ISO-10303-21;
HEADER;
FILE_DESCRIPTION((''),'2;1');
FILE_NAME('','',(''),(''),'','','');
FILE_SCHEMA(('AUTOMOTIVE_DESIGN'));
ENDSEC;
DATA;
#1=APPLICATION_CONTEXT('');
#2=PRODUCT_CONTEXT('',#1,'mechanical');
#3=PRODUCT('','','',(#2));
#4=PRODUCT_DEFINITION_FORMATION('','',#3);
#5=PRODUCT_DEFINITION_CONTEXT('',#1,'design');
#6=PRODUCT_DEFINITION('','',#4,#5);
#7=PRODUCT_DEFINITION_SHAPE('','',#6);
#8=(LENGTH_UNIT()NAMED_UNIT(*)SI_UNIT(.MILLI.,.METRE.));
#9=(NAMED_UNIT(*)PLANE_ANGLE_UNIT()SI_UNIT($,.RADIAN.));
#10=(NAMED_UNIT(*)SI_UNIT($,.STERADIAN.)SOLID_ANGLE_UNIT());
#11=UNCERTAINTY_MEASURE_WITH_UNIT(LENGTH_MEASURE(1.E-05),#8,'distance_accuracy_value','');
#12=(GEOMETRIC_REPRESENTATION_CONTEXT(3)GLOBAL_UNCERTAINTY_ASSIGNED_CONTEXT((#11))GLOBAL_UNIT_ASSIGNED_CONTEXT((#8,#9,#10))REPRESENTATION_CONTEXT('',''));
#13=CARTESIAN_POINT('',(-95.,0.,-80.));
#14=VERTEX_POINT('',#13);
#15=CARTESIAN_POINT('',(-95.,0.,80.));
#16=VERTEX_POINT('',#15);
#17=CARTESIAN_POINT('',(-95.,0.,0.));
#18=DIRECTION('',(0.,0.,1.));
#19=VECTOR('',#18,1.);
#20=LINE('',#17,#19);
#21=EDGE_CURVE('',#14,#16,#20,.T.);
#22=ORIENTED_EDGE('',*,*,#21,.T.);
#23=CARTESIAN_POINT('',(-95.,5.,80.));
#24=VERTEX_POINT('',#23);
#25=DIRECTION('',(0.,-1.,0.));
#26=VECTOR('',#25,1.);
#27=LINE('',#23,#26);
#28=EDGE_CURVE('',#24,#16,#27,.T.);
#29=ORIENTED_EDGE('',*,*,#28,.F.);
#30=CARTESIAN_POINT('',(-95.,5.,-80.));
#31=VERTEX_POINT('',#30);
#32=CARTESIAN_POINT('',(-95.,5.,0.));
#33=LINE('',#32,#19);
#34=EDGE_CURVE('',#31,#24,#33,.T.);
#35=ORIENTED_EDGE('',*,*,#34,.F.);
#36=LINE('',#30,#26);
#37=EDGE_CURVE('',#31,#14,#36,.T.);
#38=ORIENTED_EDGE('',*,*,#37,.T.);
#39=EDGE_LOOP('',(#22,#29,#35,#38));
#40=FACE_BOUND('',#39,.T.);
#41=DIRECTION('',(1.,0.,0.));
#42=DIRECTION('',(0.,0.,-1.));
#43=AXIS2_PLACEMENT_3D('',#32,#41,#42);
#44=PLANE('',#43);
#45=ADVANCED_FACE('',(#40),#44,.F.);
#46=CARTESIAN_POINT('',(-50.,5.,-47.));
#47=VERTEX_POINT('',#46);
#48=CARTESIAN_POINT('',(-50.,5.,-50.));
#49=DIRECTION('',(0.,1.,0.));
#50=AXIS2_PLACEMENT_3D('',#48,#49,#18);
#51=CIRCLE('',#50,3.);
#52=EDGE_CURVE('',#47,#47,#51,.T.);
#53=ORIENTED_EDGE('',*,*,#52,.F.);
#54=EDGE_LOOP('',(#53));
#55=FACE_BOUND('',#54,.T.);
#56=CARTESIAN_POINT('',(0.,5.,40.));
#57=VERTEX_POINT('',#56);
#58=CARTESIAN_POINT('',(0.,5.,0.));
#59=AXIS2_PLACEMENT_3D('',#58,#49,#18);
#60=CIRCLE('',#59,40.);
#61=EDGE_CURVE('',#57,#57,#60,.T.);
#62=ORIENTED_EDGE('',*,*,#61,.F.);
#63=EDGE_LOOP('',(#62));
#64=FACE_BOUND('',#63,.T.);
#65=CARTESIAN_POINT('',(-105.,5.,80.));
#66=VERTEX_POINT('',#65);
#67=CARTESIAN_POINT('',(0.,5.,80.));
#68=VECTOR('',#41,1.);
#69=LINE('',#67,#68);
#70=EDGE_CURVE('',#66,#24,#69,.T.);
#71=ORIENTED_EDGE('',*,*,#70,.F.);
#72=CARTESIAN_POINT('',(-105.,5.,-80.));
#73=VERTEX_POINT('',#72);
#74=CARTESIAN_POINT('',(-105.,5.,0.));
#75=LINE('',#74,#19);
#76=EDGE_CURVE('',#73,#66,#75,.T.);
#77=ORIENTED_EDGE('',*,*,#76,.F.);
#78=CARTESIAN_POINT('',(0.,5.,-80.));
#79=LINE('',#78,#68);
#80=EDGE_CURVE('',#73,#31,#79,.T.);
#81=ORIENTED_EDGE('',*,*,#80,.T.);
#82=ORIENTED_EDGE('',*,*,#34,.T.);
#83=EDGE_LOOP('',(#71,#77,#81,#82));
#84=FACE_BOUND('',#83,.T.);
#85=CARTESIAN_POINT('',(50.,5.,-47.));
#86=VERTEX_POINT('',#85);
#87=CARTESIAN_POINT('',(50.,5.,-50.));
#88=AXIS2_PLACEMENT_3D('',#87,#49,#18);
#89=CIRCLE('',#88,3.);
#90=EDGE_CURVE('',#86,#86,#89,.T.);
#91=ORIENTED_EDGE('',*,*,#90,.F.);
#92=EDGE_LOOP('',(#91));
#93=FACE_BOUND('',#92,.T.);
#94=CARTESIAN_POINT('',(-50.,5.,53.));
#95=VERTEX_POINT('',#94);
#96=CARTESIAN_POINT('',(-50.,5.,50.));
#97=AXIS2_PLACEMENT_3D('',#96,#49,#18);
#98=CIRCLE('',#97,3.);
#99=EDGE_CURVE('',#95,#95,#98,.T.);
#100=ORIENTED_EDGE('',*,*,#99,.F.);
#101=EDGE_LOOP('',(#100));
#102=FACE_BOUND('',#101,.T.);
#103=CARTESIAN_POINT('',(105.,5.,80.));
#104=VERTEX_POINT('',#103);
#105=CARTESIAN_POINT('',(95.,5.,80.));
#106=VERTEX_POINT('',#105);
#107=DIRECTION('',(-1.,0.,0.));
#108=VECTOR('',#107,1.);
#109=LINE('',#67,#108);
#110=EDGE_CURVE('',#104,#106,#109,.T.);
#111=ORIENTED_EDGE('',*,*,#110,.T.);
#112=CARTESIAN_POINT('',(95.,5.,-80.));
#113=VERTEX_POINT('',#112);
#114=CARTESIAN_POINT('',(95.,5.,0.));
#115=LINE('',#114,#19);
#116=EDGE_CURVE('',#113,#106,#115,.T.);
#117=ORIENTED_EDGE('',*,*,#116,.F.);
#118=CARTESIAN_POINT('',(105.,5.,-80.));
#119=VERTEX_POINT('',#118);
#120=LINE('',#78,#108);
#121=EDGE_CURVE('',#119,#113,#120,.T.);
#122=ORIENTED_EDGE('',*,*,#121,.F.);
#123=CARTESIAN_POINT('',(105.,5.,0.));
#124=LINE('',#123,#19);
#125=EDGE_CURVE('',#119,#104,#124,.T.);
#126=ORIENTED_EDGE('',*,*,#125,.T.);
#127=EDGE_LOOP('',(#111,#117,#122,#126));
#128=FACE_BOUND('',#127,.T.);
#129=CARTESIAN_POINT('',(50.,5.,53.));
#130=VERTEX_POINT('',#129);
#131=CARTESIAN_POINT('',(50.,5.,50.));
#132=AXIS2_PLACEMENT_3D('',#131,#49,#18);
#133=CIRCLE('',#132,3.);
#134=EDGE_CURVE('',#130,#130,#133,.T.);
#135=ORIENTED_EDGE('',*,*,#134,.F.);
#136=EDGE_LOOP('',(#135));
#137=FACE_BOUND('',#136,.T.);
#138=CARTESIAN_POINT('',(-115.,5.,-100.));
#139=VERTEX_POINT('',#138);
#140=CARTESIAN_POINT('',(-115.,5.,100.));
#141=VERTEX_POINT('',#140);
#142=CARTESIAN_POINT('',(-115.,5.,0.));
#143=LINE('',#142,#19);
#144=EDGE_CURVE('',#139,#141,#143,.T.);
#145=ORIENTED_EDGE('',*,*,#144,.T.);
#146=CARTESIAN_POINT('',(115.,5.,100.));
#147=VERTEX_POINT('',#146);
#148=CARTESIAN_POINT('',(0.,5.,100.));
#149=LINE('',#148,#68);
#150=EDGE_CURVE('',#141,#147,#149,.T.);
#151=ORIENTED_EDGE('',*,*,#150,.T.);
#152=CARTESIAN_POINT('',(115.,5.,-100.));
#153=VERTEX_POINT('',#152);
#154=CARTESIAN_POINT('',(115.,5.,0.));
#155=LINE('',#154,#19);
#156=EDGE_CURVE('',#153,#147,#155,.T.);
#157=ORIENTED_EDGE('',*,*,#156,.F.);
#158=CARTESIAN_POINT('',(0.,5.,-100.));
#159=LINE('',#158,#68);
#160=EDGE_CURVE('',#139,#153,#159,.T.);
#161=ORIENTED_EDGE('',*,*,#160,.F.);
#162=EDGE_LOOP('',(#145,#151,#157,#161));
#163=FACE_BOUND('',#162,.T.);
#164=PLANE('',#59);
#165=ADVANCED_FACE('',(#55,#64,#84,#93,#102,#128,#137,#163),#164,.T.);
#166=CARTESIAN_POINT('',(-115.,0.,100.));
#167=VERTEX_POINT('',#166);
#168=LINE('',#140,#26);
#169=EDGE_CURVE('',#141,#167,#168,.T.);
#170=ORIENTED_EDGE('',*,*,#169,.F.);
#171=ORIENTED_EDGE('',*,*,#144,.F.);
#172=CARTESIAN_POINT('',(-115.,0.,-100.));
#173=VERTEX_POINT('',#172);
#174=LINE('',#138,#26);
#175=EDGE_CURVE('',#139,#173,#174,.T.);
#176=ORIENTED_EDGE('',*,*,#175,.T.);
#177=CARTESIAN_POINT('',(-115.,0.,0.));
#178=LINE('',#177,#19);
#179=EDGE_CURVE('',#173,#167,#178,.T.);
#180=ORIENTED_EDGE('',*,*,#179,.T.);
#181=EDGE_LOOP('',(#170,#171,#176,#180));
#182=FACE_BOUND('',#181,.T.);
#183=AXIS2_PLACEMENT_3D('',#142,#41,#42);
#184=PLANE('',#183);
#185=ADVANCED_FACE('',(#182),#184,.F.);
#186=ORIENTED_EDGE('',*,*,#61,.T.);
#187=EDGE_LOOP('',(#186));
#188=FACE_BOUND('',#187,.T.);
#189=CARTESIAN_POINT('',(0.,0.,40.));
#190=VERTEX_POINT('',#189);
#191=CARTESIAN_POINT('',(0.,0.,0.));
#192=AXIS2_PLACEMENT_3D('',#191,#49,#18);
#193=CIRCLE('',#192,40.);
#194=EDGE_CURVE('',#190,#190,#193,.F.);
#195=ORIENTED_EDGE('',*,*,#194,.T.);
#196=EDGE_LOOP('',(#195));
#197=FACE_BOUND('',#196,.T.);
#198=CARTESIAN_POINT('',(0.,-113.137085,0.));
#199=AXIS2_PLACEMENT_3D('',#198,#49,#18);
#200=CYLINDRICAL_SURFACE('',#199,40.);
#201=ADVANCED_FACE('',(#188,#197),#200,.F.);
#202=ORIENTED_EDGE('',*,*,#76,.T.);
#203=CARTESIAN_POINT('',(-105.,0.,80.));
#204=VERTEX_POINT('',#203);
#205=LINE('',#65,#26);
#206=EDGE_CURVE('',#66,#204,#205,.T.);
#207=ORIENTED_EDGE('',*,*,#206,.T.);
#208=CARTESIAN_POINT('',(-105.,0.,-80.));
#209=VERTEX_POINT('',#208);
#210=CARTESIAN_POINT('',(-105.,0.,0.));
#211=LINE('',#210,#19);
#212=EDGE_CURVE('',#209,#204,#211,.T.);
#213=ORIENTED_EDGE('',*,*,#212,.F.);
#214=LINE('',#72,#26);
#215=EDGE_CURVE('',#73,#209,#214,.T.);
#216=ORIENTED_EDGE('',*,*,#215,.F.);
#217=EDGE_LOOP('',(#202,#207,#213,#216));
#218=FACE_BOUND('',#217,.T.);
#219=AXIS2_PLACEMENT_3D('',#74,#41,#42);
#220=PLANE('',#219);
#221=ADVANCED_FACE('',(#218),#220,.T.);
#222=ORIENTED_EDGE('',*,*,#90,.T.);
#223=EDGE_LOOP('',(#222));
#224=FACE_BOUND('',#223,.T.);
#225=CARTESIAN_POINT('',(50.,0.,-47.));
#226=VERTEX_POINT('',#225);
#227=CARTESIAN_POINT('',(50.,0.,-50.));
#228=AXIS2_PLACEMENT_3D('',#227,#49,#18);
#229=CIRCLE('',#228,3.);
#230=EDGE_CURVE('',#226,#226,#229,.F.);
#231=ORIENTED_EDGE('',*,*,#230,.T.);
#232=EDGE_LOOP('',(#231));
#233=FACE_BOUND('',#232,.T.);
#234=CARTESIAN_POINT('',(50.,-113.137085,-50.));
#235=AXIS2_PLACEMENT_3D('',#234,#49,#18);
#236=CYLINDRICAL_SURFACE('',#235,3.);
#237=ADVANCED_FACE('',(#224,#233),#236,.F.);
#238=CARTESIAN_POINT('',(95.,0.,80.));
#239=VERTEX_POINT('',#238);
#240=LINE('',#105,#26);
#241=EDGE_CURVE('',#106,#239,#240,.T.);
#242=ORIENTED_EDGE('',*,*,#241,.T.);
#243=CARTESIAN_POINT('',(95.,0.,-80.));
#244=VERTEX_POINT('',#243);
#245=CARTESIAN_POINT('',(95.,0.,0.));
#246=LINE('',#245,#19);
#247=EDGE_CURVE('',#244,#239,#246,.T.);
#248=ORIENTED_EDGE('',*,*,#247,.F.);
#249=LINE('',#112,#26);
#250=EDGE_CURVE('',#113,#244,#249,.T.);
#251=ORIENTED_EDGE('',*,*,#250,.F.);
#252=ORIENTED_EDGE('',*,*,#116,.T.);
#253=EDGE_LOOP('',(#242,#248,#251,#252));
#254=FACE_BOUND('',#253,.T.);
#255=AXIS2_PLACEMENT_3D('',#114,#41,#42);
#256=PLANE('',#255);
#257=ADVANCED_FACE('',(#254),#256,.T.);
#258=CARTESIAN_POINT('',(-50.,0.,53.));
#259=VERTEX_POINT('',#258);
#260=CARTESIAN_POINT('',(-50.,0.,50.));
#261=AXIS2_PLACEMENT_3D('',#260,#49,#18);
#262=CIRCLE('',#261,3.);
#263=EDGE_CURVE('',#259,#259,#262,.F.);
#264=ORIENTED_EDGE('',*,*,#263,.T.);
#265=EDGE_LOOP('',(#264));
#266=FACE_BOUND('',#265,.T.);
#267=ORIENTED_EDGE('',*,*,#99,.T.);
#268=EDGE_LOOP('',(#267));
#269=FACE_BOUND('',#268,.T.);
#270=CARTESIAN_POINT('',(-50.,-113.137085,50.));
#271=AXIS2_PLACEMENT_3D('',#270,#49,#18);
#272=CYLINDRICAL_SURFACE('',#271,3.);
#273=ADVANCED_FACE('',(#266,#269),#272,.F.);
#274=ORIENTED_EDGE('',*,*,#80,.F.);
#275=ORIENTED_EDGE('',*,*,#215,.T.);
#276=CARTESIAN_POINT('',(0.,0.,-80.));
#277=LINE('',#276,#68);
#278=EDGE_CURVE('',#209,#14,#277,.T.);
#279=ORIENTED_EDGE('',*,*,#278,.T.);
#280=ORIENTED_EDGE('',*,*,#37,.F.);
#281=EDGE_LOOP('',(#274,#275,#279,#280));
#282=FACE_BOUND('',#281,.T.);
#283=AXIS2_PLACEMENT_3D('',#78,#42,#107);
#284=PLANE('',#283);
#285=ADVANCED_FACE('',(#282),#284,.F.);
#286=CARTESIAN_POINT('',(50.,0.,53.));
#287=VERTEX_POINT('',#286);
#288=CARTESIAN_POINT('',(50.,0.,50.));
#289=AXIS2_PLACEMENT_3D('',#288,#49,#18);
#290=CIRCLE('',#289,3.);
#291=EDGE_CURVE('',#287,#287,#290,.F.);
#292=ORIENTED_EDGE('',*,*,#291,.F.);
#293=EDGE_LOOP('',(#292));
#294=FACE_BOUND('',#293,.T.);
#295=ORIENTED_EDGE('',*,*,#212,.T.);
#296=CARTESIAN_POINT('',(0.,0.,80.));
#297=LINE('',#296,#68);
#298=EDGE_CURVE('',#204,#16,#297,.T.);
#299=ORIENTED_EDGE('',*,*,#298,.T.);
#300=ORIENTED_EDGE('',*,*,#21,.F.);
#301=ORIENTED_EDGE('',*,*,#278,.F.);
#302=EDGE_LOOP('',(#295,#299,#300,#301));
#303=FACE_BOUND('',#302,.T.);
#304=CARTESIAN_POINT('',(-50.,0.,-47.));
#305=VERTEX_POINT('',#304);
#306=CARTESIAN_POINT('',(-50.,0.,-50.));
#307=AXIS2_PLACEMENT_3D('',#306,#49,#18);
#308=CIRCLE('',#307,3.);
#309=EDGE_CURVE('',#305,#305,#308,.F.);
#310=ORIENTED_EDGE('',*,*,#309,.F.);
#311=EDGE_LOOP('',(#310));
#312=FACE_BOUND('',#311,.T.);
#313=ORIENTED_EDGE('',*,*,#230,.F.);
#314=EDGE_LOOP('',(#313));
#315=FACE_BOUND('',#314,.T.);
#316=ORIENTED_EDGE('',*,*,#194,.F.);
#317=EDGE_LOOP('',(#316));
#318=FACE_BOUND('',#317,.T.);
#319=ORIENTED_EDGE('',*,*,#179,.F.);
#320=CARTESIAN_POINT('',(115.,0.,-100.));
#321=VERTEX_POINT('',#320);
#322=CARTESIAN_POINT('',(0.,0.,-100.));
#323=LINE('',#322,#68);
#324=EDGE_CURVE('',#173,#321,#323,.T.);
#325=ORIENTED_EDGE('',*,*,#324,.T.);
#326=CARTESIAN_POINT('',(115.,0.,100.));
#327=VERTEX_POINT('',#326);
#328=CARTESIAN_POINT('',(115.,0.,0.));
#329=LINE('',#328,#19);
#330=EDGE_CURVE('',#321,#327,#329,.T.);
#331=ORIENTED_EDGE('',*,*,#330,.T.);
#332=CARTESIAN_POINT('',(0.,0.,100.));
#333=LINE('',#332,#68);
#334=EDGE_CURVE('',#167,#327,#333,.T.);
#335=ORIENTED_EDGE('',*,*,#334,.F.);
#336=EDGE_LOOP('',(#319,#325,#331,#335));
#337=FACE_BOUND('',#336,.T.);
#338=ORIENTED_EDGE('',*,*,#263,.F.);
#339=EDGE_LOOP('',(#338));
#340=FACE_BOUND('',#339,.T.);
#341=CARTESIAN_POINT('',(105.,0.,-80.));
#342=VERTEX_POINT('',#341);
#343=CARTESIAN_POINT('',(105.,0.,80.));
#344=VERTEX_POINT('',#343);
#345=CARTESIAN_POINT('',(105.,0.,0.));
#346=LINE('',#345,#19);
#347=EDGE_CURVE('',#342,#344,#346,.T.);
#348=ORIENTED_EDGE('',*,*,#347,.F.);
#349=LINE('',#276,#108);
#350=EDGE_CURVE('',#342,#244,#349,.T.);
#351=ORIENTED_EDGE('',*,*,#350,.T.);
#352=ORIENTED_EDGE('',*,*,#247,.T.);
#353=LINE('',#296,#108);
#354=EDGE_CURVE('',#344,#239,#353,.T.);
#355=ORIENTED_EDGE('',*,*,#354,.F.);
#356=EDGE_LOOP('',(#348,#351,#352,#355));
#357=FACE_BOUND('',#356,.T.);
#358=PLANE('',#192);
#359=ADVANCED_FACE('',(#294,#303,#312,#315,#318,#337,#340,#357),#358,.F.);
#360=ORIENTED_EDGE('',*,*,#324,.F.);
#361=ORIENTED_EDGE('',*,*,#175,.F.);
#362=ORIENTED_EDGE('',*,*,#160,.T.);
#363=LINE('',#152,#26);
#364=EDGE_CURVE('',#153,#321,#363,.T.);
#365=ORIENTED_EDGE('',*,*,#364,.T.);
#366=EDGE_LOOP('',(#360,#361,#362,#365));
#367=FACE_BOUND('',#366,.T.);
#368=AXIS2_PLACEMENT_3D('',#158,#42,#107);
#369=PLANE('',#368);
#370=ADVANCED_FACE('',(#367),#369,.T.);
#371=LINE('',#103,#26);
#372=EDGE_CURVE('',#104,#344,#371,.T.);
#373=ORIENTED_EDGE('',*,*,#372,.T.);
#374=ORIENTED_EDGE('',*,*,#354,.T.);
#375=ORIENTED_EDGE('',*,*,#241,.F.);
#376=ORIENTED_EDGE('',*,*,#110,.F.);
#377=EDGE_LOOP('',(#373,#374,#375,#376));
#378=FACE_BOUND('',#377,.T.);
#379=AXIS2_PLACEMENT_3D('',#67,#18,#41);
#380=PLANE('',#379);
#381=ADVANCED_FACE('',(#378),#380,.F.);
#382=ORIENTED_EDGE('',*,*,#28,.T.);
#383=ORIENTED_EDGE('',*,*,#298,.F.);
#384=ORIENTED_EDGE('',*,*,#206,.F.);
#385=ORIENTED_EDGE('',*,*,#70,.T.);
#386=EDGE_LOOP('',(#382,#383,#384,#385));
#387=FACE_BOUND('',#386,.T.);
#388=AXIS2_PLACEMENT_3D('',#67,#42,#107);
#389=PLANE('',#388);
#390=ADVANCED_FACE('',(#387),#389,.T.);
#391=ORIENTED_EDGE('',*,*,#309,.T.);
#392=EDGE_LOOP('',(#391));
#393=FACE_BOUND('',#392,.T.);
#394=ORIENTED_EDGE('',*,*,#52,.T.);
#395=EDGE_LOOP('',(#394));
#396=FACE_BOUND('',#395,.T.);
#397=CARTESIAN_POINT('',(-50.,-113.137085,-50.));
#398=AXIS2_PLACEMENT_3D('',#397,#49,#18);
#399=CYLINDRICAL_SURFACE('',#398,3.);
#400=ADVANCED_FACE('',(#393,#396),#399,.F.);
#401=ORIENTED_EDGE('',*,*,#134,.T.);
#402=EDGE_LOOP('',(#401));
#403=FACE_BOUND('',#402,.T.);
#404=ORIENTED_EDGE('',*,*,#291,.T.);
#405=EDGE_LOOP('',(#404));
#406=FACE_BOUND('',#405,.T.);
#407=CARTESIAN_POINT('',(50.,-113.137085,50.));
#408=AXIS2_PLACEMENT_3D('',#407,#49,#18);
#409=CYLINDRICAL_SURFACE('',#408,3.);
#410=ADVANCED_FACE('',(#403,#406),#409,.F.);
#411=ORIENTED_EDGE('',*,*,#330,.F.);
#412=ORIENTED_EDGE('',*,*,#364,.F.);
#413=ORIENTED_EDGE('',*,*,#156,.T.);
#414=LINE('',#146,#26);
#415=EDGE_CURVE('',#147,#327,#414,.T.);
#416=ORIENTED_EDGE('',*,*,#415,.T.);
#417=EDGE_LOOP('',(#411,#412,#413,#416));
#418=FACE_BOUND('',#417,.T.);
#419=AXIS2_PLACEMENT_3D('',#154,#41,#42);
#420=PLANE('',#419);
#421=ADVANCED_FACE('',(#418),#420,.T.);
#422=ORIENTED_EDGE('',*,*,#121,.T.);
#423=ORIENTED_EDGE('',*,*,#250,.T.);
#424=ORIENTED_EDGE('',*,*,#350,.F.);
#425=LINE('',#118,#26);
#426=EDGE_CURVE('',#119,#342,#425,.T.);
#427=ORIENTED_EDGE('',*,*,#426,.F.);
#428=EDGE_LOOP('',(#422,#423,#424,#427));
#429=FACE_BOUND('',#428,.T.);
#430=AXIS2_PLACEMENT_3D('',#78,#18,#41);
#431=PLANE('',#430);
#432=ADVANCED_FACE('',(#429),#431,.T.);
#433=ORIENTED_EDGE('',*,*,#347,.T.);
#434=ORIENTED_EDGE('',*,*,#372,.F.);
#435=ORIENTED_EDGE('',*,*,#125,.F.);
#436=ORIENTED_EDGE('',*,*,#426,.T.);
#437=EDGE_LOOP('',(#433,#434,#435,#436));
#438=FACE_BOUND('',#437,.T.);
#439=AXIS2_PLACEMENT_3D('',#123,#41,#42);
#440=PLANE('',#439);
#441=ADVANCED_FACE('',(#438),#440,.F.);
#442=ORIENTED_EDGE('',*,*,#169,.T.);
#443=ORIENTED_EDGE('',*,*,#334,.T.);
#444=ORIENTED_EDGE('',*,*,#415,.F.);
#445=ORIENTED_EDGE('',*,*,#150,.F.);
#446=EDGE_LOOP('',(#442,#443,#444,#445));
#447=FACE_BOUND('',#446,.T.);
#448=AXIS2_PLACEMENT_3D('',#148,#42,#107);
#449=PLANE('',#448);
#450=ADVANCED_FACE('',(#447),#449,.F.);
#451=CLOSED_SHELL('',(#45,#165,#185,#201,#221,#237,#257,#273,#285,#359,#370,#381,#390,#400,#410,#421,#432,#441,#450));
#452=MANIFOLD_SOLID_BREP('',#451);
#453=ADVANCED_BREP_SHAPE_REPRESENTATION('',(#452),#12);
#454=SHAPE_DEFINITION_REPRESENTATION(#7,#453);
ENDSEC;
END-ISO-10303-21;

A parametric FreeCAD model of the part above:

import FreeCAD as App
import Part
import Sketcher
from FreeCAD import Vector

doc = App.newDocument("Part")
params = doc.addObject("Spreadsheet::Sheet", "Params")
for row, (alias, value) in enumerate([
    ("sketch1_width", "230 mm"),
    ("sketch1_width2", "10 mm"),
    ("sketch1_height", "200 mm"),
    ("sketch1_height2", "160 mm"),
    ("pad1_length", "5 mm"),
    ("sketch2_diameter", "80 mm"),
    ("sketch2_diameter2", "6 mm"),
    ("pocket1_length", "5 mm"),
], start=1):
    params.set(f"A{row}", alias)
    params.set(f"B{row}", "=" + value)
    params.setAlias(f"B{row}", alias)

body = doc.addObject("PartDesign::Body", "Body")

sketch1 = doc.addObject("Sketcher::SketchObject", "Sketch")
body.addObject(sketch1)
sketch1.AttachmentSupport = (doc.XZ_Plane, [""])
sketch1.MapMode = "FlatFace"
sketch1.addGeometry([
    Part.LineSegment(Vector(-115, -100, 0), Vector(-115, 100, 0)),
    Part.LineSegment(Vector(-115, 100, 0), Vector(115, 100, 0)),
    Part.LineSegment(Vector(115, 100, 0), Vector(115, -100, 0)),
    Part.LineSegment(Vector(115, -100, 0), Vector(-115, -100, 0)),
    Part.LineSegment(Vector(-95, 80, 0), Vector(-105, 80, 0)),
    Part.LineSegment(Vector(-105, 80, 0), Vector(-105, -80, 0)),
    Part.LineSegment(Vector(-105, -80, 0), Vector(-95, -80, 0)),
    Part.LineSegment(Vector(-95, -80, 0), Vector(-95, 80, 0)),
    Part.LineSegment(Vector(105, 80, 0), Vector(95, 80, 0)),
    Part.LineSegment(Vector(95, 80, 0), Vector(95, -80, 0)),
    Part.LineSegment(Vector(95, -80, 0), Vector(105, -80, 0)),
    Part.LineSegment(Vector(105, -80, 0), Vector(105, 80, 0)),
], False)
sketch1.addConstraint([
    Sketcher.Constraint("Coincident", 0, 2, 1, 1),
    Sketcher.Constraint("Coincident", 1, 2, 2, 1),
    Sketcher.Constraint("Coincident", 2, 2, 3, 1),
    Sketcher.Constraint("Coincident", 3, 2, 0, 1),
    Sketcher.Constraint("Coincident", 4, 2, 5, 1),
    Sketcher.Constraint("Coincident", 5, 2, 6, 1),
    Sketcher.Constraint("Coincident", 6, 2, 7, 1),
    Sketcher.Constraint("Coincident", 7, 2, 4, 1),
    Sketcher.Constraint("Coincident", 8, 2, 9, 1),
    Sketcher.Constraint("Coincident", 9, 2, 10, 1),
    Sketcher.Constraint("Coincident", 10, 2, 11, 1),
    Sketcher.Constraint("Coincident", 11, 2, 8, 1),
    Sketcher.Constraint("Vertical", 0),
    Sketcher.Constraint("Horizontal", 1),
    Sketcher.Constraint("Vertical", 2),
    Sketcher.Constraint("Horizontal", 3),
    Sketcher.Constraint("Horizontal", 4),
    Sketcher.Constraint("Vertical", 5),
    Sketcher.Constraint("Horizontal", 6),
    Sketcher.Constraint("Vertical", 7),
    Sketcher.Constraint("Horizontal", 8),
    Sketcher.Constraint("Vertical", 9),
    Sketcher.Constraint("Horizontal", 10),
    Sketcher.Constraint("Vertical", 11),
    Sketcher.Constraint("Symmetric", 0, 2, 2, 2, -1, 1),
    Sketcher.Constraint("Symmetric", 6, 2, 8, 2, -1, 1),
    Sketcher.Constraint("Symmetric", 4, 2, 10, 2, -1, 1),
    Sketcher.Constraint("Horizontal", 7, 2, 8, 2),
    Sketcher.Constraint("DistanceX", 1, 1, 1, 2, 230.0),
    Sketcher.Constraint("DistanceX", 4, 2, 4, 1, 10.0),
    Sketcher.Constraint("DistanceY", 0, 1, 0, 2, 200.0),
    Sketcher.Constraint("DistanceY", 5, 2, 5, 1, 160.0),
    Sketcher.Constraint("DistanceX", 4, 2, -1, 1, 105.0),
])
sketch1.setExpression("Constraints[28]", "Params.sketch1_width")
sketch1.setExpression("Constraints[29]", "Params.sketch1_width2")
sketch1.setExpression("Constraints[30]", "Params.sketch1_height")
sketch1.setExpression("Constraints[31]", "Params.sketch1_height2")
pad1 = doc.addObject("PartDesign::Pad", "Pad")
body.addObject(pad1)
pad1.Profile = sketch1
pad1.setExpression("Length", "Params.pad1_length")
pad1.Reversed = True

sketch2 = doc.addObject("Sketcher::SketchObject", "Sketch001")
body.addObject(sketch2)
sketch2.AttachmentSupport = (doc.XZ_Plane, [""])
sketch2.MapMode = "FlatFace"
sketch2.AttachmentOffset = App.Placement(Vector(0, 0, -5), App.Rotation())
sketch2.addGeometry([
    Part.Circle(Vector(0, 0, 0), Vector(0, 0, 1), 40),
    Part.Circle(Vector(-50, -50, 0), Vector(0, 0, 1), 3),
    Part.Circle(Vector(50, -50, 0), Vector(0, 0, 1), 3),
    Part.Circle(Vector(50, 50, 0), Vector(0, 0, 1), 3),
    Part.Circle(Vector(-50, 50, 0), Vector(0, 0, 1), 3),
], False)
sketch2.addConstraint([
    Sketcher.Constraint("Coincident", 0, 3, -1, 1),
    Sketcher.Constraint("Equal", 1, 2),
    Sketcher.Constraint("Equal", 2, 3),
    Sketcher.Constraint("Equal", 3, 4),
    Sketcher.Constraint("Symmetric", 1, 3, 3, 3, -1, 1),
    Sketcher.Constraint("Symmetric", 2, 3, 4, 3, -1, 1),
    Sketcher.Constraint("Symmetric", 1, 3, 2, 3, -2),
    Sketcher.Constraint("Diameter", 0, 80.0),
    Sketcher.Constraint("Diameter", 1, 6.0),
    Sketcher.Constraint("DistanceX", 1, 3, -1, 1, 50.0),
    Sketcher.Constraint("DistanceY", 1, 3, -1, 1, 50.0),
])
sketch2.setExpression("Constraints[7]", "Params.sketch2_diameter")
sketch2.setExpression("Constraints[8]", "Params.sketch2_diameter2")
pocket1 = doc.addObject("PartDesign::Pocket", "Pocket")
body.addObject(pocket1)
pocket1.Profile = sketch2
pocket1.setExpression("Length", "Params.pocket1_length")
pocket1.Reversed = True

doc.recompute()
